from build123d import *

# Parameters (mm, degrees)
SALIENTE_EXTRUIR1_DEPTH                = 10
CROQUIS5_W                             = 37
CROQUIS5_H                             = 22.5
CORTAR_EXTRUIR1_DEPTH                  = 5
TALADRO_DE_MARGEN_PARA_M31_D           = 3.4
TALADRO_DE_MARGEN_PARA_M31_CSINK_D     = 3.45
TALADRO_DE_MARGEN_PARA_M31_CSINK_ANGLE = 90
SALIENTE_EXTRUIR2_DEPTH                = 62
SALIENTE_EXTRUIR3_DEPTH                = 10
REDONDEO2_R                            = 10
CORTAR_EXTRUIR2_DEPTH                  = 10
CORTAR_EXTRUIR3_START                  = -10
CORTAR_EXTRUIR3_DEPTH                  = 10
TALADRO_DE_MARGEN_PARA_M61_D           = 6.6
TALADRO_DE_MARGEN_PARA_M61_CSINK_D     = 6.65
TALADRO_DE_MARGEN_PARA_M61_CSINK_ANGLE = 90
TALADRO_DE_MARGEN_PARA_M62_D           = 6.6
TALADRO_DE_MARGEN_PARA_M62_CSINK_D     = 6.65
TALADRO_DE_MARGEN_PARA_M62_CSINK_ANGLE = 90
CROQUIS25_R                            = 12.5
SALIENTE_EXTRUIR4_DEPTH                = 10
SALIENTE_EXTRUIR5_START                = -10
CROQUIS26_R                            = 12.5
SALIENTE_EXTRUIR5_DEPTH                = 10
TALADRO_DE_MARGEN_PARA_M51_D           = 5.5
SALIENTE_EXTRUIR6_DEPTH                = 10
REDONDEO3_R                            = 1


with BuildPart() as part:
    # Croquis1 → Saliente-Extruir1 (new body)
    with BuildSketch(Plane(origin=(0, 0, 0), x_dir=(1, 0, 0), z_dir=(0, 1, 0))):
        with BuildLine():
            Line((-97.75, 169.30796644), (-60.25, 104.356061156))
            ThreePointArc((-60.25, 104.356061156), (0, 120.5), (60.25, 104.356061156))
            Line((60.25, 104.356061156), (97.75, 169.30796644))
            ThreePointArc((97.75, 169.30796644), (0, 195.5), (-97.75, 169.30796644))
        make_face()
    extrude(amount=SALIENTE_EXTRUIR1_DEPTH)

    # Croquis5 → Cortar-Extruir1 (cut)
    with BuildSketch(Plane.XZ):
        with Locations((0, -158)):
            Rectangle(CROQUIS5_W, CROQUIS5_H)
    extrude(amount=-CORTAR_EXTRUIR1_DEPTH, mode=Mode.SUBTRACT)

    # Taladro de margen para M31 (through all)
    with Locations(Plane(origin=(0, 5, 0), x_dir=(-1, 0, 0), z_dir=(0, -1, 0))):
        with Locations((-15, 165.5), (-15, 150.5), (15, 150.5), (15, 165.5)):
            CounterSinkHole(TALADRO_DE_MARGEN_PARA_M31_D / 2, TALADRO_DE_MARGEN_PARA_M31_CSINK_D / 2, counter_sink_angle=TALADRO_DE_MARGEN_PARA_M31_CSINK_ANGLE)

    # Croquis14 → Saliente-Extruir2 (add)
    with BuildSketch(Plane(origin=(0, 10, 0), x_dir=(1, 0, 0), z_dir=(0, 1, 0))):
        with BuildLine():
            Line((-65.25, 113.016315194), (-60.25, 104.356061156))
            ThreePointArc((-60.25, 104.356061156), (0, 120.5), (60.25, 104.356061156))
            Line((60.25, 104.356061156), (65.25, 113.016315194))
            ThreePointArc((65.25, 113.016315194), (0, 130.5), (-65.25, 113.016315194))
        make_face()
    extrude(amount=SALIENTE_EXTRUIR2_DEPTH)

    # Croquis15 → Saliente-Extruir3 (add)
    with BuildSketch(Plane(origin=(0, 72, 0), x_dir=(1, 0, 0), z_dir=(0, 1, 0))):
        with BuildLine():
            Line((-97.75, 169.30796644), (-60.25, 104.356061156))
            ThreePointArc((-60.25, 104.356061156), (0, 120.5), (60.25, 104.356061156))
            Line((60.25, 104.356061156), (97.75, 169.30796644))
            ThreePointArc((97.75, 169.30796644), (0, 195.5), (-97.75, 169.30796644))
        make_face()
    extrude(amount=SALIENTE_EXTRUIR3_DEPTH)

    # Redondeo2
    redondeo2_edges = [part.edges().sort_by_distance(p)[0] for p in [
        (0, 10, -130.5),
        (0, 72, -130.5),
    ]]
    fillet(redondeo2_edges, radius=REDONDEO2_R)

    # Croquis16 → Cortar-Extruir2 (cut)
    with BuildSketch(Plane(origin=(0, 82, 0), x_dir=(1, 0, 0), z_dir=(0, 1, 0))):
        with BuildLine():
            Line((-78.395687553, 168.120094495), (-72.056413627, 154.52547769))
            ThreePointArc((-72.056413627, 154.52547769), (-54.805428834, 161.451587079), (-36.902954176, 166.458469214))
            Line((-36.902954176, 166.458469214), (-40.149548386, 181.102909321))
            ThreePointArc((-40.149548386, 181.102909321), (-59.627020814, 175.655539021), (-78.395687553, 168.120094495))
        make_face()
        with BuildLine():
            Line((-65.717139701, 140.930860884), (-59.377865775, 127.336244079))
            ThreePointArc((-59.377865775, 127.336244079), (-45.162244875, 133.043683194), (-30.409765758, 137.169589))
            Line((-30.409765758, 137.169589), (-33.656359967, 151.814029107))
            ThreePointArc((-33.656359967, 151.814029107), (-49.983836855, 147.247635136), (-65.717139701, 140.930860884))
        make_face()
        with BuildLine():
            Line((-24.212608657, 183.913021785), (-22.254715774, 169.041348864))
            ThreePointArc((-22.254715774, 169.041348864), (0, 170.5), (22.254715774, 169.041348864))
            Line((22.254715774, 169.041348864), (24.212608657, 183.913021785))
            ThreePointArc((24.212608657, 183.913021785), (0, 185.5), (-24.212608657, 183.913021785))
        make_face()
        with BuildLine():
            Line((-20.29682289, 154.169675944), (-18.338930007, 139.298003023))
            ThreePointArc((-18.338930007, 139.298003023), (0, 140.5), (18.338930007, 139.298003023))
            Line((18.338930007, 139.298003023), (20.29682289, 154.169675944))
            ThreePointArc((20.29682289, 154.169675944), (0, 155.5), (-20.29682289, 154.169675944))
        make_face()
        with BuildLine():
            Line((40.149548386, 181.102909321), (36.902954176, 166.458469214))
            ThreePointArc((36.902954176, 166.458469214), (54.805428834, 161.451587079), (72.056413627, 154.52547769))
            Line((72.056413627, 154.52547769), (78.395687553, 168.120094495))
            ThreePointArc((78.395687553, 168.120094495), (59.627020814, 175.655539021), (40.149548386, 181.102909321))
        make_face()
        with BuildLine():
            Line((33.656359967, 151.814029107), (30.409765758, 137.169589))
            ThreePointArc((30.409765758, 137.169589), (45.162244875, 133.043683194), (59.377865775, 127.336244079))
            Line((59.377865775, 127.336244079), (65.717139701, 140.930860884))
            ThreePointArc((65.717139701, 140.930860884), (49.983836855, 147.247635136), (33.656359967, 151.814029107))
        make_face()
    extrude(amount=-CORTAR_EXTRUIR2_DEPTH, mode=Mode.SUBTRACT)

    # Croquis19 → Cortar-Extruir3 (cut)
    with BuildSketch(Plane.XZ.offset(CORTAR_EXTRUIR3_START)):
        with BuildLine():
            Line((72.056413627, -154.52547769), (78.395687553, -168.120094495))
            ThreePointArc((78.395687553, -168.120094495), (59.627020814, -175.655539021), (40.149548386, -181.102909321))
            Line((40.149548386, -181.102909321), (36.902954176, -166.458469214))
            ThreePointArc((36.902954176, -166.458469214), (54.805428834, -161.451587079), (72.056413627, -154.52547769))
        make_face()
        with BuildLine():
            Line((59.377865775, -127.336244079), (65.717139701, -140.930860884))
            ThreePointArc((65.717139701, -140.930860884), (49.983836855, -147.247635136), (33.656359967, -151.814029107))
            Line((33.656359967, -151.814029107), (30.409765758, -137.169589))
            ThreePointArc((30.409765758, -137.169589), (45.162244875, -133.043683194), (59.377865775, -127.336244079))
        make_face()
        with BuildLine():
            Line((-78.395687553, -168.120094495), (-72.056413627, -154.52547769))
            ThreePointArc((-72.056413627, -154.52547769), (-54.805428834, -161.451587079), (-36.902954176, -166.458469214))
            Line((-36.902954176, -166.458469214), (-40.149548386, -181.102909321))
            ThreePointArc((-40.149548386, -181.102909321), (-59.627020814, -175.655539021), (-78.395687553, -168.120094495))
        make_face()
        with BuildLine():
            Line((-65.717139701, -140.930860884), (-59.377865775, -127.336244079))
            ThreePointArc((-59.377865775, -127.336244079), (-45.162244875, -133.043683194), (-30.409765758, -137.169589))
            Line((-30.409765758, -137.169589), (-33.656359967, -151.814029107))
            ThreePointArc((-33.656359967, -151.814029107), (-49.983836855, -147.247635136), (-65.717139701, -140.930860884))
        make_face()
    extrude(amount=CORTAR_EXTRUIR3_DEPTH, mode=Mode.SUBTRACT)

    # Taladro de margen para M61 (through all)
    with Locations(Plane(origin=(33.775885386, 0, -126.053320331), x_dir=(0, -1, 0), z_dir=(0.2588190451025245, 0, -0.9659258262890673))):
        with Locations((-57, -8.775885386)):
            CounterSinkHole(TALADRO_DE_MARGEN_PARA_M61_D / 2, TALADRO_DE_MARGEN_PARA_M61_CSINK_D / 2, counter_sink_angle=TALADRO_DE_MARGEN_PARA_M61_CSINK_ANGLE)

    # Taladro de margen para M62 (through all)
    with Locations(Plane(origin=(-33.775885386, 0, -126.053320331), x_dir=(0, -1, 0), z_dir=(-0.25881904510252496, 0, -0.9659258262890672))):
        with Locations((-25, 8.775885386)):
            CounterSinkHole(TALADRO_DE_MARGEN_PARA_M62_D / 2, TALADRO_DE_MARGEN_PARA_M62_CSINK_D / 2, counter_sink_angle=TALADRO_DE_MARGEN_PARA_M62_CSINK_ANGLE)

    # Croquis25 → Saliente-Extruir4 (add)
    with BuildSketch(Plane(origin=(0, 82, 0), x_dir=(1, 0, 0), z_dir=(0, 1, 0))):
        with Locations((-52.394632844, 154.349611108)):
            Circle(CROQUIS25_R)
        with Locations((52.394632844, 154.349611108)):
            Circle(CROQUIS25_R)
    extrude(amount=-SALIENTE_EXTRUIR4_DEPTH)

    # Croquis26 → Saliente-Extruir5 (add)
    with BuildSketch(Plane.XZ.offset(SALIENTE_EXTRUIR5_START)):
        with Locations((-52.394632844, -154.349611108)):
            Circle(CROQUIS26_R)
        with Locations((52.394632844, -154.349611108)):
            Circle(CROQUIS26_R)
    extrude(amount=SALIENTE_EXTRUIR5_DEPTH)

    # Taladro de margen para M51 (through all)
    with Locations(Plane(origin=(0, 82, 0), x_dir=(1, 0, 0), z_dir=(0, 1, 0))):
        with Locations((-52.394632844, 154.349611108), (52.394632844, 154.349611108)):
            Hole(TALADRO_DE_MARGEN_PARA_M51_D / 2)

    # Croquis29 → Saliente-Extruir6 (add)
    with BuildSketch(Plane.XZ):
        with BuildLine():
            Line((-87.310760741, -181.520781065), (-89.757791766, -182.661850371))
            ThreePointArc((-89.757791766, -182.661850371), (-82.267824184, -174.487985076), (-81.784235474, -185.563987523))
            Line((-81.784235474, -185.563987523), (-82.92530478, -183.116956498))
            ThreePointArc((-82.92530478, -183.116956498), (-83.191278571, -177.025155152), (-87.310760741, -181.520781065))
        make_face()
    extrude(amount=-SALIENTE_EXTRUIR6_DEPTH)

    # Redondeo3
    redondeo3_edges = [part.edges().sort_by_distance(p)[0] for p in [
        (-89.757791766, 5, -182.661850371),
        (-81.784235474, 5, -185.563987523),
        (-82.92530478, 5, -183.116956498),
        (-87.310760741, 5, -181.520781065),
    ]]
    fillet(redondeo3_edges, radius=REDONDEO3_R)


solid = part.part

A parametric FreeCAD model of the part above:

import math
import FreeCAD as App
import Part
import Sketcher
Q = App.Units.Quantity


def edges_at(feature, points):
    """Names of the edges that pass closest to the given points."""
    edges = feature.Shape.Edges
    near = lambda p: min(range(len(edges)), key=lambda i: edges[i].distToShape(Part.Vertex(*p))[0])
    return sorted({f"Edge{near(p) + 1}" for p in points})

doc = App.newDocument("Part")
body = doc.addObject("PartDesign::Body", "Body")

sketch1 = body.newObject("Sketcher::SketchObject", "Sketch")
sketch1.AttachmentSupport = (doc.getObject("XZ_Plane"), [""])
sketch1.MapMode = "FlatFace"
sketch1.addGeometry([
    Part.LineSegment(App.Vector(-98, -169, 0), App.Vector(-60, -104, 0)),
    Part.ArcOfCircle(Part.Circle(App.Vector(0, 0, 0), App.Vector(0, 0, 1), 120), math.radians(-120), math.radians(-60)),
    Part.LineSegment(App.Vector(60, -104, 0), App.Vector(98, -169, 0)),
    Part.ArcOfCircle(Part.Circle(App.Vector(0, 0, 0), App.Vector(0, 0, 1), 196), math.radians(-120), math.radians(-60)),
], False)
sketch1.addConstraint([
    Sketcher.Constraint("Coincident", 0, 2, 1, 1),
    Sketcher.Constraint("Coincident", 1, 2, 2, 1),
    Sketcher.Constraint("Coincident", 2, 2, 3, 2),
    Sketcher.Constraint("Coincident", 3, 1, 0, 1),
    Sketcher.Constraint("Coincident", 1, 3, -1, 1),
    Sketcher.Constraint("Coincident", 3, 3, -1, 1),
    Sketcher.Constraint("Horizontal", 0, 2, 1, 2),
    Sketcher.Constraint("Horizontal", 2, 2, 3, 1),
    Sketcher.Constraint("Radius", 1, 120.5),
    Sketcher.Constraint("Radius", 3, 195.5),
    Sketcher.Constraint("Angle", 0, Q("60 deg")),
    Sketcher.Constraint("DistanceX", 0, 2, 2, 2, 158.0),
])
pad1 = body.newObject("PartDesign::Pad", "Pad")
pad1.Profile = sketch1
pad1.Length = 10
pad1.Reversed = True

sketch2 = body.newObject("Sketcher::SketchObject", "Sketch001")
sketch2.AttachmentSupport = (doc.getObject("XZ_Plane"), [""])
sketch2.MapMode = "FlatFace"
sketch2.addGeometry([
    Part.LineSegment(App.Vector(-18, -147, 0), App.Vector(-18, -169, 0)),
    Part.LineSegment(App.Vector(-18, -169, 0), App.Vector(18, -169, 0)),
    Part.LineSegment(App.Vector(18, -169, 0), App.Vector(18, -147, 0)),
    Part.LineSegment(App.Vector(18, -147, 0), App.Vector(-18, -147, 0)),
], False)
sketch2.addConstraint([
    Sketcher.Constraint("Coincident", 0, 2, 1, 1),
    Sketcher.Constraint("Coincident", 1, 2, 2, 1),
    Sketcher.Constraint("Coincident", 2, 2, 3, 1),
    Sketcher.Constraint("Coincident", 3, 2, 0, 1),
    Sketcher.Constraint("Vertical", 0),
    Sketcher.Constraint("Horizontal", 1),
    Sketcher.Constraint("Vertical", 2),
    Sketcher.Constraint("Horizontal", 3),
    Sketcher.Constraint("DistanceX", 1, 1, 1, 2, 37.0),
    Sketcher.Constraint("DistanceY", 0, 2, 0, 1, 22.5),
    Sketcher.Constraint("DistanceX", 0, 2, -1, 1, 18.5),
    Sketcher.Constraint("DistanceY", 0, 2, -1, 1, 169.25),
])
pocket1 = body.newObject("PartDesign::Pocket", "Pocket")
pocket1.Profile = sketch2
pocket1.Length = 5

sketch3 = body.newObject("Sketcher::SketchObject", "Sketch002")
sketch3.AttachmentSupport = (doc.getObject("XZ_Plane"), [""])
sketch3.MapMode = "FlatFace"
sketch3.AttachmentOffset = App.Placement(App.Vector(0, 0, -5), App.Rotation())
sketch3.addGeometry([
    Part.Circle(App.Vector(15, -165.5, 0), App.Vector(0, 0, 1), 1.7),
    Part.Circle(App.Vector(15, -150.5, 0), App.Vector(0, 0, 1), 1.7),
    Part.Circle(App.Vector(-15, -150.5, 0), App.Vector(0, 0, 1), 1.7),
    Part.Circle(App.Vector(-15, -165.5, 0), App.Vector(0, 0, 1), 1.7),
], False)
sketch3.addConstraint([
    Sketcher.Constraint("Equal", 0, 1),
    Sketcher.Constraint("Equal", 1, 2),
    Sketcher.Constraint("Equal", 2, 3),
    Sketcher.Constraint("Symmetric", 1, 3, 2, 3, -2),
    Sketcher.Constraint("Symmetric", 0, 3, 3, 3, -2),
    Sketcher.Constraint("Vertical", 0, 3, 1, 3),
    Sketcher.Constraint("Diameter", 0, 3.4),
    Sketcher.Constraint("DistanceX", -1, 1, 0, 3, 15.0),
    Sketcher.Constraint("DistanceY", 0, 3, 1, 3, 15.0),
    Sketcher.Constraint("DistanceY", 0, 3, -1, 1, 165.5),
])
doc.recompute()
hole = body.newObject("PartDesign::Hole", "Hole")
hole.Profile = sketch3
hole.ThreadType = "None"
hole.Diameter = 3.4
hole.DepthType = "ThroughAll"
hole.HoleCutType = "Countersink"
hole.HoleCutDiameter = 3.45
hole.HoleCutCountersinkAngle = 90

sketch4 = body.newObject("Sketcher::SketchObject", "Sketch003")
sketch4.AttachmentSupport = (doc.getObject("XZ_Plane"), [""])
sketch4.MapMode = "FlatFace"
sketch4.AttachmentOffset = App.Placement(App.Vector(0, 0, -10), App.Rotation())
sketch4.addGeometry([
    Part.LineSegment(App.Vector(-65, -113, 0), App.Vector(-60, -104, 0)),
    Part.ArcOfCircle(Part.Circle(App.Vector(0, 0, 0), App.Vector(0, 0, 1), 120), math.radians(-120), math.radians(-60)),
    Part.LineSegment(App.Vector(60, -104, 0), App.Vector(65, -113, 0)),
    Part.ArcOfCircle(Part.Circle(App.Vector(0, 0, 0), App.Vector(0, 0, 1), 131), math.radians(-120), math.radians(-60)),
], False)
sketch4.addConstraint([
    Sketcher.Constraint("Coincident", 0, 2, 1, 1),
    Sketcher.Constraint("Coincident", 1, 2, 2, 1),
    Sketcher.Constraint("Coincident", 2, 2, 3, 2),
    Sketcher.Constraint("Coincident", 3, 1, 0, 1),
    Sketcher.Constraint("Coincident", 1, 3, -1, 1),
    Sketcher.Constraint("Coincident", 3, 3, -1, 1),
    Sketcher.Constraint("Horizontal", 0, 2, 1, 2),
    Sketcher.Constraint("Horizontal", 2, 2, 3, 1),
    Sketcher.Constraint("Radius", 1, 120.5),
    Sketcher.Constraint("Radius", 3, 130.5),
    Sketcher.Constraint("Angle", 0, Q("60 deg")),
    Sketcher.Constraint("DistanceX", 0, 2, 1, 2, 120.5),
])
pad2 = body.newObject("PartDesign::Pad", "Pad001")
pad2.Profile = sketch4
pad2.Length = 62
pad2.Reversed = True

sketch5 = body.newObject("Sketcher::SketchObject", "Sketch004")
sketch5.AttachmentSupport = (doc.getObject("XZ_Plane"), [""])
sketch5.MapMode = "FlatFace"
sketch5.AttachmentOffset = App.Placement(App.Vector(0, 0, -72), App.Rotation())
sketch5.addGeometry([
    Part.LineSegment(App.Vector(-98, -169, 0), App.Vector(-60, -104, 0)),
    Part.ArcOfCircle(Part.Circle(App.Vector(0, 0, 0), App.Vector(0, 0, 1), 120), math.radians(-120), math.radians(-60)),
    Part.LineSegment(App.Vector(60, -104, 0), App.Vector(98, -169, 0)),
    Part.ArcOfCircle(Part.Circle(App.Vector(0, 0, 0), App.Vector(0, 0, 1), 196), math.radians(-120), math.radians(-60)),
], False)
sketch5.addConstraint([
    Sketcher.Constraint("Coincident", 0, 2, 1, 1),
    Sketcher.Constraint("Coincident", 1, 2, 2, 1),
    Sketcher.Constraint("Coincident", 2, 2, 3, 2),
    Sketcher.Constraint("Coincident", 3, 1, 0, 1),
    Sketcher.Constraint("Coincident", 1, 3, -1, 1),
    Sketcher.Constraint("Coincident", 3, 3, -1, 1),
    Sketcher.Constraint("Horizontal", 0, 2, 1, 2),
    Sketcher.Constraint("Horizontal", 2, 2, 3, 1),
    Sketcher.Constraint("Radius", 1, 120.5),
    Sketcher.Constraint("Radius", 3, 195.5),
    Sketcher.Constraint("Angle", 0, Q("60 deg")),
    Sketcher.Constraint("DistanceX", 0, 2, 2, 2, 158.0),
])
pad3 = body.newObject("PartDesign::Pad", "Pad002")
pad3.Profile = sketch5
pad3.Length = 10
pad3.Reversed = True
doc.recompute()

fillet = body.newObject("PartDesign::Fillet", "Fillet")
fillet.Base = (pad3, edges_at(pad3, [(0, 10, -130.5), (0, 72, -130.5)]))
fillet.Radius = 10

sketch6 = body.newObject("Sketcher::SketchObject", "Sketch005")
sketch6.AttachmentSupport = (doc.getObject("XZ_Plane"), [""])
sketch6.MapMode = "FlatFace"
sketch6.AttachmentOffset = App.Placement(App.Vector(0, 0, -82), App.Rotation())
sketch6.addGeometry([
    Part.LineSegment(App.Vector(-78, -168, 0), App.Vector(-72, -155, 0)),
    Part.ArcOfCircle(Part.Circle(App.Vector(0, 0, 0), App.Vector(0, 0, 1), 171), math.radians(-115), math.radians(-102.5)),
    Part.LineSegment(App.Vector(-37, -166, 0), App.Vector(-40, -181, 0)),
    Part.ArcOfCircle(Part.Circle(App.Vector(0, 0, 0), App.Vector(0, 0, 1), 186), math.radians(-115), math.radians(-102.5)),
    Part.LineSegment(App.Vector(-66, -141, 0), App.Vector(-59, -127, 0)),
    Part.ArcOfCircle(Part.Circle(App.Vector(0, 0, 0), App.Vector(0, 0, 1), 141), math.radians(-115), math.radians(-102.5)),
    Part.LineSegment(App.Vector(-30, -137, 0), App.Vector(-34, -152, 0)),
    Part.ArcOfCircle(Part.Circle(App.Vector(0, 0, 0), App.Vector(0, 0, 1), 156), math.radians(-115), math.radians(-102.5)),
    Part.LineSegment(App.Vector(-24, -184, 0), App.Vector(-22, -169, 0)),
    Part.ArcOfCircle(Part.Circle(App.Vector(0, 0, 0), App.Vector(0, 0, 1), 170), math.radians(-97.5), math.radians(-82.5)),
    Part.LineSegment(App.Vector(22, -169, 0), App.Vector(24, -184, 0)),
    Part.ArcOfCircle(Part.Circle(App.Vector(0, 0, 0), App.Vector(0, 0, 1), 186), math.radians(-97.5), math.radians(-82.5)),
    Part.LineSegment(App.Vector(-20, -154, 0), App.Vector(-18, -139, 0)),
    Part.ArcOfCircle(Part.Circle(App.Vector(0, 0, 0), App.Vector(0, 0, 1), 140), math.radians(-97.5), math.radians(-82.5)),
    Part.LineSegment(App.Vector(18, -139, 0), App.Vector(20, -154, 0)),
    Part.ArcOfCircle(Part.Circle(App.Vector(0, 0, 0), App.Vector(0, 0, 1), 156), math.radians(-97.5), math.radians(-82.5)),
    Part.LineSegment(App.Vector(40, -181, 0), App.Vector(37, -166, 0)),
    Part.ArcOfCircle(Part.Circle(App.Vector(0, 0, 0), App.Vector(0, 0, 1), 171), math.radians(-77.5), math.radians(-65)),
    Part.LineSegment(App.Vector(72, -155, 0), App.Vector(78, -168, 0)),
    Part.ArcOfCircle(Part.Circle(App.Vector(0, 0, 0), App.Vector(0, 0, 1), 186), math.radians(-77.5), math.radians(-65)),
    Part.LineSegment(App.Vector(34, -152, 0), App.Vector(30, -137, 0)),
    Part.ArcOfCircle(Part.Circle(App.Vector(0, 0, 0), App.Vector(0, 0, 1), 141), math.radians(-77.5), math.radians(-65)),
    Part.LineSegment(App.Vector(59, -127, 0), App.Vector(66, -141, 0)),
    Part.ArcOfCircle(Part.Circle(App.Vector(0, 0, 0), App.Vector(0, 0, 1), 156), math.radians(-77.5), math.radians(-65)),
], False)
sketch6.addConstraint([
    Sketcher.Constraint("Coincident", 0, 2, 1, 1),
    Sketcher.Constraint("Coincident", 1, 2, 2, 1),
    Sketcher.Constraint("Coincident", 2, 2, 3, 2),
    Sketcher.Constraint("Coincident", 3, 1, 0, 1),
    Sketcher.Constraint("Coincident", 4, 2, 5, 1),
    Sketcher.Constraint("Coincident", 5, 2, 6, 1),
    Sketcher.Constraint("Coincident", 6, 2, 7, 2),
    Sketcher.Constraint("Coincident", 7, 1, 4, 1),
    Sketcher.Constraint("Coincident", 8, 2, 9, 1),
    Sketcher.Constraint("Coincident", 9, 2, 10, 1),
    Sketcher.Constraint("Coincident", 10, 2, 11, 2),
    Sketcher.Constraint("Coincident", 11, 1, 8, 1),
    Sketcher.Constraint("Coincident", 12, 2, 13, 1),
    Sketcher.Constraint("Coincident", 13, 2, 14, 1),
    Sketcher.Constraint("Coincident", 14, 2, 15, 2),
    Sketcher.Constraint("Coincident", 15, 1, 12, 1),
    Sketcher.Constraint("Coincident", 16, 2, 17, 1),
    Sketcher.Constraint("Coincident", 17, 2, 18, 1),
    Sketcher.Constraint("Coincident", 18, 2, 19, 2),
    Sketcher.Constraint("Coincident", 19, 1, 16, 1),
    Sketcher.Constraint("Coincident", 20, 2, 21, 1),
    Sketcher.Constraint("Coincident", 21, 2, 22, 1),
    Sketcher.Constraint("Coincident", 22, 2, 23, 2),
    Sketcher.Constraint("Coincident", 23, 1, 20, 1),
    Sketcher.Constraint("Coincident", 1, 3, -1, 1),
    Sketcher.Constraint("Coincident", 3, 3, -1, 1),
    Sketcher.Constraint("Coincident", 5, 3, -1, 1),
    Sketcher.Constraint("Coincident", 7, 3, -1, 1),
    Sketcher.Constraint("Coincident", 9, 3, -1, 1),
    Sketcher.Constraint("Coincident", 11, 3, -1, 1),
    Sketcher.Constraint("Coincident", 13, 3, -1, 1),
    Sketcher.Constraint("Coincident", 15, 3, -1, 1),
    Sketcher.Constraint("Coincident", 17, 3, -1, 1),
    Sketcher.Constraint("Coincident", 19, 3, -1, 1),
    Sketcher.Constraint("Coincident", 21, 3, -1, 1),
    Sketcher.Constraint("Coincident", 23, 3, -1, 1),
    Sketcher.Constraint("Equal", 1, 9),
    Sketcher.Constraint("Equal", 3, 11),
    Sketcher.Constraint("Equal", 5, 13),
    Sketcher.Constraint("Equal", 7, 15),
    Sketcher.Constraint("Equal", 9, 17),
    Sketcher.Constraint("Equal", 11, 19),
    Sketcher.Constraint("Equal", 13, 21),
    Sketcher.Constraint("Equal", 15, 23),
    Sketcher.Constraint("Parallel", 0, 4),
    Sketcher.Constraint("Parallel", 2, 6),
    Sketcher.Constraint("Parallel", 8, 12),
    Sketcher.Constraint("Parallel", 10, 14),
    Sketcher.Constraint("Parallel", 16, 20),
    Sketcher.Constraint("Parallel", 18, 22),
    Sketcher.Constraint("Horizontal", 8, 2, 9, 2),
    Sketcher.Constraint("Horizontal", 10, 2, 11, 1),
    Sketcher.Constraint("Horizontal", 12, 2, 13, 2),
    Sketcher.Constraint("Horizontal", 1, 2, 16, 2),
    Sketcher.Constraint("Horizontal", 0, 2, 17, 2),
    Sketcher.Constraint("Horizontal", 3, 1, 18, 2),
    Sketcher.Constraint("Horizontal", 2, 2, 19, 1),
    Sketcher.Constraint("Horizontal", 5, 2, 20, 2),
    Sketcher.Constraint("Horizontal", 4, 2, 21, 2),
    Sketcher.Constraint("Equal", 2, 4),
    Sketcher.Constraint("Radius", 1, 170.5),
    Sketcher.Constraint("Radius", 3, 185.5),
    Sketcher.Constraint("Radius", 5, 140.5),
    Sketcher.Constraint("Angle", 0, Q("65 deg")),
    Sketcher.Constraint("Angle", 2, Q("-102.5 deg")),
    Sketcher.Constraint("Angle", 8, Q("82.5 deg")),
    Sketcher.Constraint("DistanceX", 4, 2, 5, 2, 28.9681),
    Sketcher.Constraint("DistanceY", 17, 2, 14, 2, 0.355802),
    Sketcher.Constraint("DistanceY", 1, 2, -1, 1, 166.458469),
    Sketcher.Constraint("DistanceY", 5, 2, -1, 1, 137.169589),
    Sketcher.Constraint("DistanceY", 8, 2, -1, 1, 169.041349),
    Sketcher.Constraint("DistanceX", 12, 2, -1, 1, 18.33893),
])
pocket2 = body.newObject("PartDesign::Pocket", "Pocket001")
pocket2.Profile = sketch6
pocket2.Length = 10
pocket2.Reversed = True

sketch7 = body.newObject("Sketcher::SketchObject", "Sketch006")
sketch7.AttachmentSupport = (doc.getObject("XZ_Plane"), [""])
sketch7.MapMode = "FlatFace"
sketch7.AttachmentOffset = App.Placement(App.Vector(0, 0, -10), App.Rotation())
sketch7.addGeometry([
    Part.LineSegment(App.Vector(78, -168, 0), App.Vector(72, -155, 0)),
    Part.ArcOfCircle(Part.Circle(App.Vector(0, 0, 0), App.Vector(0, 0, 1), 171), math.radians(-77.5), math.radians(-65)),
    Part.LineSegment(App.Vector(37, -166, 0), App.Vector(40, -181, 0)),
    Part.ArcOfCircle(Part.Circle(App.Vector(0, 0, 0), App.Vector(0, 0, 1), 186), math.radians(-77.5), math.radians(-65)),
    Part.LineSegment(App.Vector(66, -141, 0), App.Vector(59, -127, 0)),
    Part.ArcOfCircle(Part.Circle(App.Vector(0, 0, 0), App.Vector(0, 0, 1), 141), math.radians(-77.5), math.radians(-65)),
    Part.LineSegment(App.Vector(30, -137, 0), App.Vector(34, -152, 0)),
    Part.ArcOfCircle(Part.Circle(App.Vector(0, 0, 0), App.Vector(0, 0, 1), 156), math.radians(-77.5), math.radians(-65)),
    Part.LineSegment(App.Vector(-72, -155, 0), App.Vector(-78, -168, 0)),
    Part.ArcOfCircle(Part.Circle(App.Vector(0, 0, 0), App.Vector(0, 0, 1), 186), math.radians(-115), math.radians(-102.5)),
    Part.LineSegment(App.Vector(-40, -181, 0), App.Vector(-37, -166, 0)),
    Part.ArcOfCircle(Part.Circle(App.Vector(0, 0, 0), App.Vector(0, 0, 1), 171), math.radians(-115), math.radians(-102.5)),
    Part.LineSegment(App.Vector(-59, -127, 0), App.Vector(-66, -141, 0)),
    Part.ArcOfCircle(Part.Circle(App.Vector(0, 0, 0), App.Vector(0, 0, 1), 156), math.radians(-115), math.radians(-102.5)),
    Part.LineSegment(App.Vector(-34, -152, 0), App.Vector(-30, -137, 0)),
    Part.ArcOfCircle(Part.Circle(App.Vector(0, 0, 0), App.Vector(0, 0, 1), 141), math.radians(-115), math.radians(-102.5)),
], False)
sketch7.addConstraint([
    Sketcher.Constraint("Coincident", 0, 2, 1, 2),
    Sketcher.Constraint("Coincident", 1, 1, 2, 1),
    Sketcher.Constraint("Coincident", 2, 2, 3, 1),
    Sketcher.Constraint("Coincident", 3, 2, 0, 1),
    Sketcher.Constraint("Coincident", 4, 2, 5, 2),
    Sketcher.Constraint("Coincident", 5, 1, 6, 1),
    Sketcher.Constraint("Coincident", 6, 2, 7, 1),
    Sketcher.Constraint("Coincident", 7, 2, 4, 1),
    Sketcher.Constraint("Coincident", 8, 2, 9, 1),
    Sketcher.Constraint("Coincident", 9, 2, 10, 1),
    Sketcher.Constraint("Coincident", 10, 2, 11, 2),
    Sketcher.Constraint("Coincident", 11, 1, 8, 1),
    Sketcher.Constraint("Coincident", 12, 2, 13, 1),
    Sketcher.Constraint("Coincident", 13, 2, 14, 1),
    Sketcher.Constraint("Coincident", 14, 2, 15, 2),
    Sketcher.Constraint("Coincident", 15, 1, 12, 1),
    Sketcher.Constraint("Coincident", 1, 3, -1, 1),
    Sketcher.Constraint("Coincident", 3, 3, -1, 1),
    Sketcher.Constraint("Coincident", 5, 3, -1, 1),
    Sketcher.Constraint("Coincident", 7, 3, -1, 1),
    Sketcher.Constraint("Coincident", 9, 3, -1, 1),
    Sketcher.Constraint("Coincident", 11, 3, -1, 1),
    Sketcher.Constraint("Coincident", 13, 3, -1, 1),
    Sketcher.Constraint("Coincident", 15, 3, -1, 1),
    Sketcher.Constraint("Equal", 3, 9),
    Sketcher.Constraint("Equal", 1, 11),
    Sketcher.Constraint("Equal", 7, 13),
    Sketcher.Constraint("Equal", 5, 15),
    Sketcher.Constraint("Parallel", 0, 4),
    Sketcher.Constraint("Parallel", 2, 6),
    Sketcher.Constraint("Parallel", 8, 12),
    Sketcher.Constraint("Parallel", 10, 14),
    Sketcher.Constraint("Horizontal", 3, 2, 8, 2),
    Sketcher.Constraint("Horizontal", 2, 2, 9, 2),
    Sketcher.Constraint("Horizontal", 1, 1, 10, 2),
    Sketcher.Constraint("Horizontal", 0, 2, 11, 1),
    Sketcher.Constraint("Horizontal", 7, 2, 12, 2),
    Sketcher.Constraint("Horizontal", 6, 2, 13, 2),
    Sketcher.Constraint("Equal", 2, 4),
    Sketcher.Constraint("Radius", 1, 170.5),
    Sketcher.Constraint("Radius", 3, 185.5),
    Sketcher.Constraint("Radius", 5, 140.5),
    Sketcher.Constraint("Angle", 0, Q("115 deg")),
    Sketcher.Constraint("Angle", 2, Q("-77.5 deg")),
    Sketcher.Constraint("DistanceX", 5, 1, 4, 2, 28.9681),
    Sketcher.Constraint("DistanceY", 1, 1, -1, 1, 166.458469),
    Sketcher.Constraint("DistanceY", 5, 1, -1, 1, 137.169589),
    Sketcher.Constraint("DistanceX", 1, 1, 0, 2, 35.153459),
])
pocket3 = body.newObject("PartDesign::Pocket", "Pocket002")
pocket3.Profile = sketch7
pocket3.Length = 10
pocket3.Reversed = True

sketch8 = body.newObject("Sketcher::SketchObject", "Sketch007")
sketch8.Placement = App.Placement(App.Vector(33.775885, 0, -126.05332), App.Rotation(App.Vector(0, -1, 0), App.Vector(-0.965925826, 0, -0.258819045), App.Vector(0.258819045, 0, -0.965925826), "ZXY"))
sketch8.addGeometry(Part.Circle(App.Vector(-57, -8.8, 0), App.Vector(0, 0, 1), 3.3), False)
sketch8.addConstraint([
    Sketcher.Constraint("Diameter", 0, 6.6),
    Sketcher.Constraint("DistanceX", 0, 3, -1, 1, 57.0),
    Sketcher.Constraint("DistanceY", 0, 3, -1, 1, 8.775885),
])
doc.recompute()
hole2 = body.newObject("PartDesign::Hole", "Hole001")
hole2.Profile = sketch8
hole2.ThreadType = "None"
hole2.Diameter = 6.6
hole2.DepthType = "ThroughAll"
hole2.HoleCutType = "Countersink"
hole2.HoleCutDiameter = 6.65
hole2.HoleCutCountersinkAngle = 90

sketch9 = body.newObject("Sketcher::SketchObject", "Sketch008")
sketch9.Placement = App.Placement(App.Vector(-33.775885, 0, -126.05332), App.Rotation(App.Vector(0, -1, 0), App.Vector(-0.965925826, 0, 0.258819045), App.Vector(-0.258819045, 0, -0.965925826), "ZXY"))
sketch9.addGeometry(Part.Circle(App.Vector(-25, 8.8, 0), App.Vector(0, 0, 1), 3.3), False)
sketch9.addConstraint([
    Sketcher.Constraint("Diameter", 0, 6.6),
    Sketcher.Constraint("DistanceX", 0, 3, -1, 1, 25.0),
    Sketcher.Constraint("DistanceY", -1, 1, 0, 3, 8.775885),
])
doc.recompute()
hole3 = body.newObject("PartDesign::Hole", "Hole002")
hole3.Profile = sketch9
hole3.ThreadType = "None"
hole3.Diameter = 6.6
hole3.DepthType = "ThroughAll"
hole3.HoleCutType = "Countersink"
hole3.HoleCutDiameter = 6.65
hole3.HoleCutCountersinkAngle = 90

sketch10 = body.newObject("Sketcher::SketchObject", "Sketch009")
sketch10.AttachmentSupport = (doc.getObject("XZ_Plane"), [""])
sketch10.MapMode = "FlatFace"
sketch10.AttachmentOffset = App.Placement(App.Vector(0, 0, -82), App.Rotation())
sketch10.addGeometry([
    Part.Circle(App.Vector(-52, -154, 0), App.Vector(0, 0, 1), 12),
    Part.Circle(App.Vector(52, -154, 0), App.Vector(0, 0, 1), 12),
], False)
sketch10.addConstraint([
    Sketcher.Constraint("Equal", 0, 1),
    Sketcher.Constraint("Symmetric", 0, 3, 1, 3, -2),
    Sketcher.Constraint("Diameter", 0, 25.0),
    Sketcher.Constraint("DistanceY", 0, 3, -1, 1, 154.349611),
    Sketcher.Constraint("DistanceX", 0, 3, -1, 1, 52.394633),
])
pad4 = body.newObject("PartDesign::Pad", "Pad003")
pad4.Profile = sketch10
pad4.Length = 10

sketch11 = body.newObject("Sketcher::SketchObject", "Sketch010")
sketch11.AttachmentSupport = (doc.getObject("XZ_Plane"), [""])
sketch11.MapMode = "FlatFace"
sketch11.AttachmentOffset = App.Placement(App.Vector(0, 0, -10), App.Rotation())
sketch11.addGeometry([
    Part.Circle(App.Vector(-52, -154, 0), App.Vector(0, 0, 1), 12),
    Part.Circle(App.Vector(52, -154, 0), App.Vector(0, 0, 1), 12),
], False)
sketch11.addConstraint([
    Sketcher.Constraint("Equal", 0, 1),
    Sketcher.Constraint("Symmetric", 0, 3, 1, 3, -2),
    Sketcher.Constraint("Diameter", 0, 25.0),
    Sketcher.Constraint("DistanceY", 0, 3, -1, 1, 154.349611),
    Sketcher.Constraint("DistanceX", 0, 3, -1, 1, 52.394633),
])
pad5 = body.newObject("PartDesign::Pad", "Pad004")
pad5.Profile = sketch11
pad5.Length = 10

sketch12 = body.newObject("Sketcher::SketchObject", "Sketch011")
sketch12.AttachmentSupport = (doc.getObject("XZ_Plane"), [""])
sketch12.MapMode = "FlatFace"
sketch12.AttachmentOffset = App.Placement(App.Vector(0, 0, -82), App.Rotation())
sketch12.addGeometry([
    Part.Circle(App.Vector(-52.4, -154.3, 0), App.Vector(0, 0, 1), 2.8),
    Part.Circle(App.Vector(52.4, -154.3, 0), App.Vector(0, 0, 1), 2.8),
], False)
sketch12.addConstraint([
    Sketcher.Constraint("Equal", 0, 1),
    Sketcher.Constraint("Symmetric", 0, 3, 1, 3, -2),
    Sketcher.Constraint("Diameter", 0, 5.5),
    Sketcher.Constraint("DistanceY", 0, 3, -1, 1, 154.349611),
    Sketcher.Constraint("DistanceX", 0, 3, -1, 1, 52.394633),
])
doc.recompute()
hole4 = body.newObject("PartDesign::Hole", "Hole003")
hole4.Profile = sketch12
hole4.ThreadType = "None"
hole4.Diameter = 5.5
hole4.DepthType = "ThroughAll"
hole4.Reversed = True

sketch13 = body.newObject("Sketcher::SketchObject", "Sketch012")
sketch13.AttachmentSupport = (doc.getObject("XZ_Plane"), [""])
sketch13.MapMode = "FlatFace"
sketch13.addGeometry([
    Part.LineSegment(App.Vector(-89.8, -182.7, 0), App.Vector(-87.3, -181.5, 0)),
    Part.ArcOfCircle(Part.Circle(App.Vector(-84.3, -180.1, 0), App.Vector(0, 0, 1), 3.3), math.radians(-65), math.radians(205)),
    Part.LineSegment(App.Vector(-82.9, -183.1, 0), App.Vector(-81.8, -185.6, 0)),
    Part.ArcOfCircle(Part.Circle(App.Vector(-84.3, -180.1, 0), App.Vector(0, 0, 1), 6), math.radians(-65), math.radians(205)),
], False)
sketch13.addConstraint([
    Sketcher.Constraint("Coincident", 0, 2, 1, 2),
    Sketcher.Constraint("Coincident", 1, 1, 2, 1),
    Sketcher.Constraint("Coincident", 2, 2, 3, 1),
    Sketcher.Constraint("Coincident", 3, 2, 0, 1),
    Sketcher.Constraint("Coincident", 3, 3, 1, 3),
    Sketcher.Constraint("Perpendicular", 0, 2),
    Sketcher.Constraint("Radius", 3, 6.0),
    Sketcher.Constraint("Radius", 1, 3.3),
    Sketcher.Constraint("Angle", 0, Q("25 deg")),
    Sketcher.Constraint("DistanceY", 1, 3, -1, 1, 180.126141),
    Sketcher.Constraint("DistanceX", 0, 2, -1, 1, 87.310761),
    Sketcher.Constraint("DistanceY", 0, 2, -1, 1, 181.520781),
    Sketcher.Constraint("DistanceX", 1, 3, 1, 1, 1.39464),
])
pad6 = body.newObject("PartDesign::Pad", "Pad005")
pad6.Profile = sketch13
pad6.Length = 10
pad6.Reversed = True
doc.recompute()

fillet2 = body.newObject("PartDesign::Fillet", "Fillet001")
fillet2.Base = (pad6, edges_at(pad6, [
    (-89.758, 5, -182.662),
    (-81.784, 5, -185.564),
    (-82.925, 5, -183.117),
    (-87.311, 5, -181.521),
]))
fillet2.Radius = 1

doc.recompute()
